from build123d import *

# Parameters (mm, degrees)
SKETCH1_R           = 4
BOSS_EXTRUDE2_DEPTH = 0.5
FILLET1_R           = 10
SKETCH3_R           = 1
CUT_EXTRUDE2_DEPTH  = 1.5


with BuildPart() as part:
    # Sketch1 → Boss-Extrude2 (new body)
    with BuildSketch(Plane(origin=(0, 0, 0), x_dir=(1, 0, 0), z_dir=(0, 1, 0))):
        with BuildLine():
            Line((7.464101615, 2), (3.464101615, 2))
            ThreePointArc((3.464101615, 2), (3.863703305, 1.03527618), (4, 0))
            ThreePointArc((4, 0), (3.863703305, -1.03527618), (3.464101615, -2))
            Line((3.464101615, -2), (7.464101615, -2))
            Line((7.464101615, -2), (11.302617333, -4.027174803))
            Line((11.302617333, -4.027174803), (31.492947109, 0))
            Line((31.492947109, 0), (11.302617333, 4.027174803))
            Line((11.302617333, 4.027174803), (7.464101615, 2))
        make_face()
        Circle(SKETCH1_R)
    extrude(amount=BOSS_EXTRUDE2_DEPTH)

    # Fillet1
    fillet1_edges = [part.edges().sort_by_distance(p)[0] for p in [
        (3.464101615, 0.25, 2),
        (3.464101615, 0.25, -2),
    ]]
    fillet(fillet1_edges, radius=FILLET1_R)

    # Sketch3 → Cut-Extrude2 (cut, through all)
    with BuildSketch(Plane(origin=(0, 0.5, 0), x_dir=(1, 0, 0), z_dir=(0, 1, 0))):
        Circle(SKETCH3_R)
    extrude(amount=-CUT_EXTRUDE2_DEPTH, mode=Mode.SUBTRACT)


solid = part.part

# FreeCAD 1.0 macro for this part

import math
import FreeCAD as App
import Part
import Sketcher

V = App.Vector


def edges_at(feature, points):
    """Names of the edges that pass closest to the given points."""
    edges = feature.Shape.Edges
    near = lambda p: min(range(len(edges)), key=lambda i: edges[i].distToShape(Part.Vertex(*p))[0])
    return sorted({f"Edge{near(p) + 1}" for p in points})

doc = App.newDocument("Part")
params = doc.addObject("Spreadsheet::Sheet", "Params")
for row, (alias, value) in enumerate([
    ("sketch1_radius", "4 mm"),
    ("sketch1_width", "4 mm"),
    ("pad1_length", "0.5 mm"),
    ("fillet_radius", "10 mm"),
    ("sketch2_diameter", "2 mm"),
], start=1):
    params.set(f"A{row}", alias)
    params.set(f"B{row}", "=" + value)
    params.setAlias(f"B{row}", alias)

body = doc.addObject("PartDesign::Body", "Body")

sketch1 = body.newObject("Sketcher::SketchObject", "Sketch")
sketch1.AttachmentSupport = (doc.getObject("XZ_Plane"), [""])
sketch1.MapMode = "FlatFace"
sketch1.addGeometry([
    Part.LineSegment(V(7.5, -2, 0), V(3.5, -2, 0)),
    Part.ArcOfCircle(Part.Circle(V(0, 0, 0), V(0, 0, 1), 4), math.radians(30), math.radians(330)),
    Part.LineSegment(V(3.5, 2, 0), V(7.5, 2, 0)),
    Part.LineSegment(V(7.5, 2, 0), V(11.3, 4, 0)),
    Part.LineSegment(V(11.3, 4, 0), V(31.5, 0, 0)),
    Part.LineSegment(V(31.5, 0, 0), V(11.3, -4, 0)),
    Part.LineSegment(V(11.3, -4, 0), V(7.5, -2, 0)),
], False)
sketch1.addConstraint([
    Sketcher.Constraint("Coincident", 0, 2, 1, 2),
    Sketcher.Constraint("Coincident", 1, 1, 2, 1),
    Sketcher.Constraint("Coincident", 2, 2, 3, 1),
    Sketcher.Constraint("Coincident", 3, 2, 4, 1),
    Sketcher.Constraint("Coincident", 4, 2, 5, 1),
    Sketcher.Constraint("Coincident", 5, 2, 6, 1),
    Sketcher.Constraint("Coincident", 6, 2, 0, 1),
    Sketcher.Constraint("Horizontal", 0),
    Sketcher.Constraint("Horizontal", 2),
    Sketcher.Constraint("Coincident", 1, 3, -1, 1),
    Sketcher.Constraint("Symmetric", 3, 2, 5, 2, -1),
    Sketcher.Constraint("Symmetric", 2, 2, 6, 2, -1),
    Sketcher.Constraint("PointOnObject", 4, 2, -1),
    Sketcher.Constraint("Radius", 1, 4.0),
    Sketcher.Constraint("DistanceX", 0, 2, 0, 1, 4.0),
    Sketcher.Constraint("DistanceY", 0, 2, -1, 1, 2.0),
    Sketcher.Constraint("DistanceX", 3, 2, 4, 2, 20.19033),
    Sketcher.Constraint("DistanceY", 5, 2, 3, 2, 8.05435),
    Sketcher.Constraint("Distance", 3, 4.340926),
])
sketch1.setExpression("Constraints[13]", "Params.sketch1_radius")
sketch1.setExpression("Constraints[14]", "Params.sketch1_width")
pad1 = body.newObject("PartDesign::Pad", "Pad")
pad1.Profile = sketch1
pad1.setExpression("Length", "Params.pad1_length")
pad1.Reversed = True
doc.recompute()

fillet = body.newObject("PartDesign::Fillet", "Fillet")
fillet.Base = (pad1, edges_at(pad1, [(3.464, 0.25, 2), (3.464, 0.25, -2)]))
fillet.setExpression("Radius", "Params.fillet_radius")

sketch2 = body.newObject("Sketcher::SketchObject", "Sketch001")
sketch2.AttachmentSupport = (doc.getObject("XZ_Plane"), [""])
sketch2.MapMode = "FlatFace"
sketch2.AttachmentOffset = App.Placement(V(0, 0, -0.5), App.Rotation())
sketch2.addGeometry(Part.Circle(V(0, 0, 0), V(0, 0, 1), 1), False)
sketch2.addConstraint([
    Sketcher.Constraint("Coincident", 0, 3, -1, 1),
    Sketcher.Constraint("Diameter", 0, 2.0),
])
sketch2.setExpression("Constraints[1]", "Params.sketch2_diameter")
pocket1 = body.newObject("PartDesign::Pocket", "Pocket")
pocket1.Profile = sketch2
pocket1.Type = "ThroughAll"
pocket1.Reversed = True

doc.recompute()
